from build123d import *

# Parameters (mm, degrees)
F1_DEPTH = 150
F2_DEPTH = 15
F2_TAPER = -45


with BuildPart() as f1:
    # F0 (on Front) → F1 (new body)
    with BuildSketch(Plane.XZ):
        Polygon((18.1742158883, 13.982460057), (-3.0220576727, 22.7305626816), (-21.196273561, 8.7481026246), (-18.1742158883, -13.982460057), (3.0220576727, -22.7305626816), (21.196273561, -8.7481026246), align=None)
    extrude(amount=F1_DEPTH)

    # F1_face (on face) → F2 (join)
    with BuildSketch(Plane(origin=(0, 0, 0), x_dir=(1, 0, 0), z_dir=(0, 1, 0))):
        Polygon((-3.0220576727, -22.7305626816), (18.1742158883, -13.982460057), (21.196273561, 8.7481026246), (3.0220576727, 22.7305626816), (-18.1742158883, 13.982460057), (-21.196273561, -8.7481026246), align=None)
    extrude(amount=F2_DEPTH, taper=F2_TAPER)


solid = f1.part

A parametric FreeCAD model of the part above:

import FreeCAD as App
import Part
import Sketcher

V = App.Vector
Q = App.Units.Quantity

doc = App.newDocument("Part")
body = doc.addObject("PartDesign::Body", "Body")

# Sketch on XZ plane
sketch1 = body.newObject("Sketcher::SketchObject", "Sketch")
sketch1.AttachmentSupport = (doc.getObject("XZ_Plane"), [""])
sketch1.MapMode = "FlatFace"
sketch1.addGeometry([
    Part.LineSegment(V(18, 14, 0), V(-3, 23, 0)),  # 0
    Part.LineSegment(V(-3, 23, 0), V(-21, 9, 0)),  # 1
    Part.LineSegment(V(-21, 9, 0), V(-18, -14, 0)),  # 2
    Part.LineSegment(V(-18, -14, 0), V(3, -23, 0)),  # 3
    Part.LineSegment(V(3, -23, 0), V(21, -9, 0)),  # 4
    Part.LineSegment(V(21, -9, 0), V(18, 14, 0)),  # 5
], False)
sketch1.addConstraint([
    Sketcher.Constraint("Coincident", 0, 2, 1, 1),
    Sketcher.Constraint("Coincident", 1, 2, 2, 1),
    Sketcher.Constraint("Coincident", 2, 2, 3, 1),
    Sketcher.Constraint("Coincident", 3, 2, 4, 1),
    Sketcher.Constraint("Coincident", 4, 2, 5, 1),
    Sketcher.Constraint("Coincident", 5, 2, 0, 1),
    Sketcher.Constraint("Symmetric", 0, 2, 3, 2, -1, 1),
    Sketcher.Constraint("Symmetric", 1, 2, 4, 2, -1, 1),
    Sketcher.Constraint("Symmetric", 2, 2, 5, 2, -1, 1),
    Sketcher.Constraint("Equal", 0, 1),
    Sketcher.Constraint("Equal", 1, 2),
    Sketcher.Constraint("DistanceY", 2, 2, -1, 1, Q("13.98246 mm")),
    Sketcher.Constraint("DistanceY", 1, 2, 0, 2, Q("13.98246 mm")),
    Sketcher.Constraint("DistanceX", 2, 2, 0, 2, Q("15.152158 mm")),
    Sketcher.Constraint("DistanceX", 1, 2, 3, 2, Q("24.218331 mm")),
])
pad1 = body.newObject("PartDesign::Pad", "Pad")
pad1.Profile = sketch1
pad1.Length = 150

# Sketch on XZ plane
sketch2 = body.newObject("Sketcher::SketchObject", "Sketch001")
sketch2.AttachmentSupport = (doc.getObject("XZ_Plane"), [""])
sketch2.MapMode = "FlatFace"
sketch2.addGeometry([
    Part.LineSegment(V(-3, 23, 0), V(18, 14, 0)),  # 0
    Part.LineSegment(V(18, 14, 0), V(21, -9, 0)),  # 1
    Part.LineSegment(V(21, -9, 0), V(3, -23, 0)),  # 2
    Part.LineSegment(V(3, -23, 0), V(-18, -14, 0)),  # 3
    Part.LineSegment(V(-18, -14, 0), V(-21, 9, 0)),  # 4
    Part.LineSegment(V(-21, 9, 0), V(-3, 23, 0)),  # 5
], False)
sketch2.addConstraint([
    Sketcher.Constraint("Coincident", 0, 2, 1, 1),
    Sketcher.Constraint("Coincident", 1, 2, 2, 1),
    Sketcher.Constraint("Coincident", 2, 2, 3, 1),
    Sketcher.Constraint("Coincident", 3, 2, 4, 1),
    Sketcher.Constraint("Coincident", 4, 2, 5, 1),
    Sketcher.Constraint("Coincident", 5, 2, 0, 1),
    Sketcher.Constraint("Symmetric", 0, 2, 3, 2, -1, 1),
    Sketcher.Constraint("Symmetric", 1, 2, 4, 2, -1, 1),
    Sketcher.Constraint("Symmetric", 2, 2, 5, 2, -1, 1),
    Sketcher.Constraint("Equal", 0, 1),
    Sketcher.Constraint("Equal", 1, 2),
    Sketcher.Constraint("DistanceY", -1, 1, 0, 2, Q("13.98246 mm")),
    Sketcher.Constraint("DistanceY", 2, 2, 1, 2, Q("13.98246 mm")),
    Sketcher.Constraint("DistanceX", 2, 2, 0, 2, Q("15.152158 mm")),
    Sketcher.Constraint("DistanceX", 3, 2, 1, 2, Q("39.370489 mm")),
])
pad2 = body.newObject("PartDesign::Pad", "Pad001")
pad2.Profile = sketch2
pad2.Length = 15
pad2.Reversed = True
pad2.TaperAngle = 45

doc.recompute()
